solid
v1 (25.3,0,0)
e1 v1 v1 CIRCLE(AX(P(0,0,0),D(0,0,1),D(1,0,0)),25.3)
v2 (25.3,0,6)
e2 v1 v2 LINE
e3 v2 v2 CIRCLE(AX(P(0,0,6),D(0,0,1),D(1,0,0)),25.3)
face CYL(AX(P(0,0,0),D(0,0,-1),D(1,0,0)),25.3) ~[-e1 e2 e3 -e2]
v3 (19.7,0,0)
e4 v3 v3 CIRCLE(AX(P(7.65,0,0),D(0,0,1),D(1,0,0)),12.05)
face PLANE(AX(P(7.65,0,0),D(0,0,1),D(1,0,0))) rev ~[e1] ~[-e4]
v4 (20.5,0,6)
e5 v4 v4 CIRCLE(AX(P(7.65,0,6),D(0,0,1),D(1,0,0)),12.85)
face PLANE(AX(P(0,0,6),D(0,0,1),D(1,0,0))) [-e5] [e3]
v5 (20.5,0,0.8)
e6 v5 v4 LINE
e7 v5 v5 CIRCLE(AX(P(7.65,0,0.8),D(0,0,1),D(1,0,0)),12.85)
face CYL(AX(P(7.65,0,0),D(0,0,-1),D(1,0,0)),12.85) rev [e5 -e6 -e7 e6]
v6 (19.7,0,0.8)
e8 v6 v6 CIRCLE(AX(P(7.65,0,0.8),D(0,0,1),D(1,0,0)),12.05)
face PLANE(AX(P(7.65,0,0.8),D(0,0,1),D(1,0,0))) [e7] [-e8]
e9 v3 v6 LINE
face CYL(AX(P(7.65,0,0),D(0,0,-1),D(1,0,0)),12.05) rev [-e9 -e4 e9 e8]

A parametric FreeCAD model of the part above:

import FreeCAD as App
import Part
import Sketcher

V = App.Vector
Q = App.Units.Quantity

doc = App.newDocument("Part")
body = doc.addObject("PartDesign::Body", "Body")

# Sketch on XY plane
sketch1 = body.newObject("Sketcher::SketchObject", "Sketch")
sketch1.AttachmentSupport = (doc.getObject("XY_Plane"), [""])
sketch1.MapMode = "FlatFace"
sketch1.addGeometry([
    Part.Circle(V(0, 0, 0), V(0, 0, 1), 25.3),
    Part.Circle(V(7.65, 0, 0), V(0, 0, 1), 12.85),
], False)
sketch1.addConstraint([
    Sketcher.Constraint("Coincident", 0, 3, -1, 1),
    Sketcher.Constraint("PointOnObject", 1, 3, -1),
    Sketcher.Constraint("Diameter", 0, Q("50.6 mm")),
    Sketcher.Constraint("Diameter", 1, Q("25.7 mm")),
    Sketcher.Constraint("DistanceX", -1, 1, 1, 3, Q("7.65 mm")),
])
pad1 = body.newObject("PartDesign::Pad", "Pad")
pad1.Profile = sketch1
pad1.Length = 6

# Sketch on XY plane
sketch2 = body.newObject("Sketcher::SketchObject", "Sketch001")
sketch2.AttachmentSupport = (doc.getObject("XY_Plane"), [""])
sketch2.MapMode = "FlatFace"
sketch2.addGeometry([
    Part.Circle(V(7.65, 0, 0), V(0, 0, 1), 12.85),
    Part.Circle(V(7.65, 0, 0), V(0, 0, 1), 12.05),
], False)
sketch2.addConstraint([
    Sketcher.Constraint("Coincident", 1, 3, 0, 3),
    Sketcher.Constraint("PointOnObject", 0, 3, -1),
    Sketcher.Constraint("Diameter", 0, Q("25.7 mm")),
    Sketcher.Constraint("Diameter", 1, Q("24.1 mm")),
    Sketcher.Constraint("DistanceX", -1, 1, 0, 3, Q("7.65 mm")),
])
pad2 = body.newObject("PartDesign::Pad", "Pad001")
pad2.Profile = sketch2
pad2.Length = 0.8

doc.recompute()
